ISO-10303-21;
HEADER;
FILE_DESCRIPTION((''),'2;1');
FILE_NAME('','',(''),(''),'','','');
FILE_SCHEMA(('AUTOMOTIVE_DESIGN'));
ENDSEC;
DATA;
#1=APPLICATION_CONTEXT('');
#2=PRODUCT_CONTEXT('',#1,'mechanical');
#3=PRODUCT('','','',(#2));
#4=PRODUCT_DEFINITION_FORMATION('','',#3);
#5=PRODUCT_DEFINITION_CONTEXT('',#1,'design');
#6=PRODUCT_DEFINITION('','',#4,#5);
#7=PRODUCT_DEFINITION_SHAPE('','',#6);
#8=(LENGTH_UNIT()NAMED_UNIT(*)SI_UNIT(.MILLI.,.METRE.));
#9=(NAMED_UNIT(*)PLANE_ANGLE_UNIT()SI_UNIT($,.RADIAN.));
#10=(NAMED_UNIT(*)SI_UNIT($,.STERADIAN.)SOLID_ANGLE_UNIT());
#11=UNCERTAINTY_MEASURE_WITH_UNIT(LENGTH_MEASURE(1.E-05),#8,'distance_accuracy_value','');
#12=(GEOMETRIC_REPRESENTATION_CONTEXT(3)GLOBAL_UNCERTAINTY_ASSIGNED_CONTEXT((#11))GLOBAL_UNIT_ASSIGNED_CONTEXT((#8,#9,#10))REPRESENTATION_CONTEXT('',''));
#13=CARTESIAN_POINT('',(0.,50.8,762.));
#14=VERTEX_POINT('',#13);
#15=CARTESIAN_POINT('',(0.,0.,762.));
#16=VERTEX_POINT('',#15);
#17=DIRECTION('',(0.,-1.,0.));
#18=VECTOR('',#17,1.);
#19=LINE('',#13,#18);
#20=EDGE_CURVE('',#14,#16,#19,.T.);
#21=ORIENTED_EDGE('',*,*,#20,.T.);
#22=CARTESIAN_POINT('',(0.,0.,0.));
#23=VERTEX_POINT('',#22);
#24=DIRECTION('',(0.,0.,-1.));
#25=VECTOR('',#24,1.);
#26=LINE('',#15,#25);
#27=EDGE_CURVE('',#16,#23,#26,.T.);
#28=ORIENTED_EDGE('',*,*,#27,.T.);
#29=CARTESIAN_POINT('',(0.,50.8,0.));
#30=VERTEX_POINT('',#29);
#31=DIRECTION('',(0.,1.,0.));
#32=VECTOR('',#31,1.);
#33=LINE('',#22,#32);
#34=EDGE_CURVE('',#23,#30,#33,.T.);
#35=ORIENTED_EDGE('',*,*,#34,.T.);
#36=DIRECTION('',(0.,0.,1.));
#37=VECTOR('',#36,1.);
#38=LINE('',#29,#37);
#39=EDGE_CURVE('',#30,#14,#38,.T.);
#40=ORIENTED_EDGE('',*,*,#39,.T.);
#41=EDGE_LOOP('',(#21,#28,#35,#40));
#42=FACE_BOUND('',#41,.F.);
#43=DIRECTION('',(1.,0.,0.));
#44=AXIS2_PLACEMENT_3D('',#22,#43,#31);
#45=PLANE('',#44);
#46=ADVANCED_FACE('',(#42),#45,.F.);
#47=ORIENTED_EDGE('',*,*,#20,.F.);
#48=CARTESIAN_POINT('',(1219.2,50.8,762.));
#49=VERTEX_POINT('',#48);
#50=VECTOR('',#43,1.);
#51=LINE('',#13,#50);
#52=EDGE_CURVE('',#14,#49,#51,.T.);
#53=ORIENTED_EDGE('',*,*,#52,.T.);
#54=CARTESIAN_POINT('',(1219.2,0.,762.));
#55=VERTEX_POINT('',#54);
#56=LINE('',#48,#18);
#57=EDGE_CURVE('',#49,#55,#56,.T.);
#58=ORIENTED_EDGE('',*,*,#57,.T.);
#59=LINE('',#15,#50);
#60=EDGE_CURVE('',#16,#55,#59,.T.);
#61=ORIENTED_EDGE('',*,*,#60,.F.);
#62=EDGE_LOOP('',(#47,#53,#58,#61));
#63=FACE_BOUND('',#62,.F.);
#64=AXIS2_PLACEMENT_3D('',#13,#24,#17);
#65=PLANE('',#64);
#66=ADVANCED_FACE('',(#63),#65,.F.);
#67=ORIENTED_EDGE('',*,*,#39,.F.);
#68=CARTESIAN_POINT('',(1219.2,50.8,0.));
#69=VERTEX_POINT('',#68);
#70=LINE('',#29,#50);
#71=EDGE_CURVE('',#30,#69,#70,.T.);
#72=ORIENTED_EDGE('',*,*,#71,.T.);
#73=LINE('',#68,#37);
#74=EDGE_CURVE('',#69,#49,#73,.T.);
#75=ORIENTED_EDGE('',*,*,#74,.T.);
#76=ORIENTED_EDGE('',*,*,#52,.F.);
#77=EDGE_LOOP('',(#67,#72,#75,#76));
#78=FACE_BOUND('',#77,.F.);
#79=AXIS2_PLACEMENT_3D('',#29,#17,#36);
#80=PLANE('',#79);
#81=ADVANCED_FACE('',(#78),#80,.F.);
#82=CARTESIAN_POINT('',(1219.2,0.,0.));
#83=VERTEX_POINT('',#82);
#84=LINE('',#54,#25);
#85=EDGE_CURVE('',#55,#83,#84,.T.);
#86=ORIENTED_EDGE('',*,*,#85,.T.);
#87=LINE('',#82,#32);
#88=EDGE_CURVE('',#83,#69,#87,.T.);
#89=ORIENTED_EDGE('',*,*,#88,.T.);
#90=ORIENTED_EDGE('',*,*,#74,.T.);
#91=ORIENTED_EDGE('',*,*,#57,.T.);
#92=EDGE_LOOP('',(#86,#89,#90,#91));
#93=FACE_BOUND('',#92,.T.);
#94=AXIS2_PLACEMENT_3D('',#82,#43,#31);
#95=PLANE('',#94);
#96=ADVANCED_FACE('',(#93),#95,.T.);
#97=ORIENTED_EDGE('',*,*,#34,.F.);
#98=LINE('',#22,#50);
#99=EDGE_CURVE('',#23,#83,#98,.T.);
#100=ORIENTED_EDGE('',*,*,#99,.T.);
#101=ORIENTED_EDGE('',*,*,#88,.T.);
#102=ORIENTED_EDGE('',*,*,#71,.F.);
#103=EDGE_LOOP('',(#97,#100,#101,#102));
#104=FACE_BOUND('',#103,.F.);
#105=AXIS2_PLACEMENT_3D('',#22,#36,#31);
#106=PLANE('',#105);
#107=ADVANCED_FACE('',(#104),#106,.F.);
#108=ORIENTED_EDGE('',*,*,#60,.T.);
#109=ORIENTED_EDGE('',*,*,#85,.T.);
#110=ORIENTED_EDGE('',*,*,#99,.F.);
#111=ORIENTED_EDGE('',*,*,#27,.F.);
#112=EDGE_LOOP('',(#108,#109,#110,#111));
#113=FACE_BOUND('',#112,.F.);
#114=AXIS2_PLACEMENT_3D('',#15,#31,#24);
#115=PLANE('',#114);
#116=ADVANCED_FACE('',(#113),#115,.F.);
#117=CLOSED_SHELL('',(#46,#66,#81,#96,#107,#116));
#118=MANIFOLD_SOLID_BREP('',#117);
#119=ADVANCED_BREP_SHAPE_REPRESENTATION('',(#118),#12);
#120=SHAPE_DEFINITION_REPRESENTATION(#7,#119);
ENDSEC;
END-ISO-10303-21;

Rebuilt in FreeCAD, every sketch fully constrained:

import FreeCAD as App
import Part
import Sketcher
Q = App.Units.Quantity

doc = App.newDocument("Part")
body = doc.addObject("PartDesign::Body", "Body")

# Sketch on YZ plane
sketch1 = body.newObject("Sketcher::SketchObject", "Sketch")
sketch1.AttachmentSupport = (doc.getObject("YZ_Plane"), [""])
sketch1.MapMode = "FlatFace"
sketch1.addGeometry([
    Part.LineSegment(App.Vector(0, 762, 0), App.Vector(0, 0, 0)),
    Part.LineSegment(App.Vector(0, 0, 0), App.Vector(51, 0, 0)),
    Part.LineSegment(App.Vector(51, 0, 0), App.Vector(51, 762, 0)),
    Part.LineSegment(App.Vector(51, 762, 0), App.Vector(0, 762, 0)),
], False)
sketch1.addConstraint([
    Sketcher.Constraint("Coincident", 0, 2, 1, 1),
    Sketcher.Constraint("Coincident", 1, 2, 2, 1),
    Sketcher.Constraint("Coincident", 2, 2, 3, 1),
    Sketcher.Constraint("Coincident", 3, 2, 0, 1),
    Sketcher.Constraint("Vertical", 0),
    Sketcher.Constraint("Horizontal", 1),
    Sketcher.Constraint("Vertical", 2),
    Sketcher.Constraint("Horizontal", 3),
    Sketcher.Constraint("Coincident", 0, 2, -1, 1),
    Sketcher.Constraint("DistanceX", 1, 1, 1, 2, Q("2 in")),
    Sketcher.Constraint("DistanceY", 0, 2, 0, 1, Q("30 in")),
])
pad1 = body.newObject("PartDesign::Pad", "Pad")
pad1.Profile = sketch1
pad1.Length = Q("48 in")

doc.recompute()
